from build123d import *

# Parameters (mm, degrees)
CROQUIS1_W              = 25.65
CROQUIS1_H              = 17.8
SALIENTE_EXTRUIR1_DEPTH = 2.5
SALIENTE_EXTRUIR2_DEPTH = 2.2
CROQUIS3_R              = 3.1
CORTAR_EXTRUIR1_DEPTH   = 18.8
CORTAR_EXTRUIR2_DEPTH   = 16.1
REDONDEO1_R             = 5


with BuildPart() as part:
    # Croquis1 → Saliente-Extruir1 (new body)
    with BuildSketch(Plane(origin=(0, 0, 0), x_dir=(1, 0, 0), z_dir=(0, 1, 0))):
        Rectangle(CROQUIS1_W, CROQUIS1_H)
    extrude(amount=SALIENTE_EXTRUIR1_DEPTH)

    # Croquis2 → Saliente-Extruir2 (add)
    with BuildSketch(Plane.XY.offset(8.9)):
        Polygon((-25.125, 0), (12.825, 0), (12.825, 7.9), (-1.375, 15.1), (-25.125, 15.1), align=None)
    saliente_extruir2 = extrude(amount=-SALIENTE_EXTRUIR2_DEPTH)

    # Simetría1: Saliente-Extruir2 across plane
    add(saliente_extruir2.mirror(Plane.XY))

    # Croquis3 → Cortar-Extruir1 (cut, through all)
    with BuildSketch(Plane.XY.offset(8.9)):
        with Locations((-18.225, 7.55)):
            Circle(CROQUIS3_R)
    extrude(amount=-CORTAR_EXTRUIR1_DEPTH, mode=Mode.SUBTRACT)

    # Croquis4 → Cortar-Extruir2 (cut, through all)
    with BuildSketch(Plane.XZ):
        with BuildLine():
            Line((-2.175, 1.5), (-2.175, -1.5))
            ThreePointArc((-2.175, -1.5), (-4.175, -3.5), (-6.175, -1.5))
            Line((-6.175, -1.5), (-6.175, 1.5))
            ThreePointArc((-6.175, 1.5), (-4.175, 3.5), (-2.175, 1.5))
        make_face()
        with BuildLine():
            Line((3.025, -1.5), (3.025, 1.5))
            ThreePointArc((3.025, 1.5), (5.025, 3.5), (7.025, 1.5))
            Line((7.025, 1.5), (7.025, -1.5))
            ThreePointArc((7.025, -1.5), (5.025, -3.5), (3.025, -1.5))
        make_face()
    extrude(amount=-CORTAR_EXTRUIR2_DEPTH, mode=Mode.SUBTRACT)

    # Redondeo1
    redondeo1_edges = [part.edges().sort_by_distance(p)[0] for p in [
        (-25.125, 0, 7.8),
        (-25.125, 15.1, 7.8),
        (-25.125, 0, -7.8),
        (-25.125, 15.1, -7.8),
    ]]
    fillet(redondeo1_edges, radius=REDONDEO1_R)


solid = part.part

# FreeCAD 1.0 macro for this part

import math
import FreeCAD as App
import Part
import Sketcher


def edges_at(feature, points):
    """Names of the edges that pass closest to the given points."""
    edges = feature.Shape.Edges
    near = lambda p: min(range(len(edges)), key=lambda i: edges[i].distToShape(Part.Vertex(*p))[0])
    return sorted({f"Edge{near(p) + 1}" for p in points})

doc = App.newDocument("Part")
body = doc.addObject("PartDesign::Body", "Body")

# Sketch on XZ plane
sketch1 = body.newObject("Sketcher::SketchObject", "Sketch")
sketch1.AttachmentSupport = (doc.getObject("XZ_Plane"), [""])
sketch1.MapMode = "FlatFace"
sketch1.addGeometry(Part.LineSegment(App.Vector(-13, -9, 0), App.Vector(-13, 9, 0)), False)
sketch1.addGeometry(Part.LineSegment(App.Vector(-13, 9, 0), App.Vector(13, 9, 0)), False)
sketch1.addGeometry(Part.LineSegment(App.Vector(13, 9, 0), App.Vector(13, -9, 0)), False)
sketch1.addGeometry(Part.LineSegment(App.Vector(13, -9, 0), App.Vector(-13, -9, 0)), False)
sketch1.addConstraint(Sketcher.Constraint("Coincident", 0, 2, 1, 1))
sketch1.addConstraint(Sketcher.Constraint("Coincident", 1, 2, 2, 1))
sketch1.addConstraint(Sketcher.Constraint("Coincident", 2, 2, 3, 1))
sketch1.addConstraint(Sketcher.Constraint("Coincident", 3, 2, 0, 1))
sketch1.addConstraint(Sketcher.Constraint("Vertical", 0))
sketch1.addConstraint(Sketcher.Constraint("Horizontal", 1))
sketch1.addConstraint(Sketcher.Constraint("Vertical", 2))
sketch1.addConstraint(Sketcher.Constraint("Horizontal", 3))
sketch1.addConstraint(Sketcher.Constraint("Symmetric", 0, 2, 2, 2, -1, 1))
sketch1.addConstraint(Sketcher.Constraint("DistanceY", 0, 1, 0, 2, 17.8))
sketch1.addConstraint(Sketcher.Constraint("DistanceX", 1, 1, 1, 2, 25.65))
pad1 = body.newObject("PartDesign::Pad", "Pad")
pad1.Profile = sketch1
pad1.Length = 2.5
pad1.Reversed = True

# Sketch on XY plane
sketch2 = body.newObject("Sketcher::SketchObject", "Sketch001")
sketch2.AttachmentSupport = (doc.getObject("XY_Plane"), [""])
sketch2.MapMode = "FlatFace"
sketch2.AttachmentOffset = App.Placement(App.Vector(0, 0, 8.9), App.Rotation())
sketch2.addGeometry(Part.LineSegment(App.Vector(-25, 0, 0), App.Vector(13, 0, 0)), False)
sketch2.addGeometry(Part.LineSegment(App.Vector(13, 0, 0), App.Vector(13, 8, 0)), False)
sketch2.addGeometry(Part.LineSegment(App.Vector(13, 8, 0), App.Vector(-1, 15, 0)), False)
sketch2.addGeometry(Part.LineSegment(App.Vector(-1, 15, 0), App.Vector(-25, 15, 0)), False)
sketch2.addGeometry(Part.LineSegment(App.Vector(-25, 15, 0), App.Vector(-25, 0, 0)), False)
sketch2.addConstraint(Sketcher.Constraint("Coincident", 0, 2, 1, 1))
sketch2.addConstraint(Sketcher.Constraint("Coincident", 1, 2, 2, 1))
sketch2.addConstraint(Sketcher.Constraint("Coincident", 2, 2, 3, 1))
sketch2.addConstraint(Sketcher.Constraint("Coincident", 3, 2, 4, 1))
sketch2.addConstraint(Sketcher.Constraint("Coincident", 4, 2, 0, 1))
sketch2.addConstraint(Sketcher.Constraint("Horizontal", 0))
sketch2.addConstraint(Sketcher.Constraint("Vertical", 1))
sketch2.addConstraint(Sketcher.Constraint("Horizontal", 3))
sketch2.addConstraint(Sketcher.Constraint("Vertical", 4))
sketch2.addConstraint(Sketcher.Constraint("PointOnObject", 0, 2, -1))
sketch2.addConstraint(Sketcher.Constraint("DistanceY", 1, 1, 1, 2, 7.9))
sketch2.addConstraint(Sketcher.Constraint("DistanceY", 4, 2, 4, 1, 15.1))
sketch2.addConstraint(Sketcher.Constraint("DistanceX", 0, 1, 0, 2, 37.95))
sketch2.addConstraint(Sketcher.Constraint("DistanceX", 3, 2, 3, 1, 23.75))
sketch2.addConstraint(Sketcher.Constraint("DistanceX", -1, 1, 0, 2, 12.825))
pad2 = body.newObject("PartDesign::Pad", "Pad001")
pad2.Profile = sketch2
pad2.Length = 2.2
pad2.Reversed = True
doc.recompute()

mirrored = body.newObject("PartDesign::Mirrored", "Mirrored")
mirrored.Originals = [pad2]
mirrored.MirrorPlane = (doc.getObject("XY_Plane"), [""])
body.Tip = mirrored

# Sketch on XY plane
sketch3 = body.newObject("Sketcher::SketchObject", "Sketch002")
sketch3.AttachmentSupport = (doc.getObject("XY_Plane"), [""])
sketch3.MapMode = "FlatFace"
sketch3.AttachmentOffset = App.Placement(App.Vector(0, 0, 8.9), App.Rotation())
sketch3.addGeometry(Part.Circle(App.Vector(-18.2, 7.5, 0), App.Vector(0, 0, 1), 3.1), False)
sketch3.addConstraint(Sketcher.Constraint("Diameter", 0, 6.2))
sketch3.addConstraint(Sketcher.Constraint("DistanceY", -1, 1, 0, 3, 7.55))
sketch3.addConstraint(Sketcher.Constraint("DistanceX", 0, 3, -1, 1, 18.225))
pocket1 = body.newObject("PartDesign::Pocket", "Pocket")
pocket1.Profile = sketch3
pocket1.Type = "ThroughAll"

# Sketch on XZ plane
sketch4 = body.newObject("Sketcher::SketchObject", "Sketch003")
sketch4.AttachmentSupport = (doc.getObject("XZ_Plane"), [""])
sketch4.MapMode = "FlatFace"
sketch4.addGeometry(Part.LineSegment(App.Vector(-2.2, -1.5, 0), App.Vector(-2.2, 1.5, 0)), False)
sketch4.addGeometry(Part.ArcOfCircle(Part.Circle(App.Vector(-4.2, 1.5, 0), App.Vector(0, 0, 1), 2), math.radians(0), math.radians(180)), False)
sketch4.addGeometry(Part.LineSegment(App.Vector(-6.2, 1.5, 0), App.Vector(-6.2, -1.5, 0)), False)
sketch4.addGeometry(Part.ArcOfCircle(Part.Circle(App.Vector(-4.2, -1.5, 0), App.Vector(0, 0, 1), 2), math.radians(180), math.radians(360)), False)
sketch4.addGeometry(Part.LineSegment(App.Vector(3, 1.5, 0), App.Vector(3, -1.5, 0)), False)
sketch4.addGeometry(Part.ArcOfCircle(Part.Circle(App.Vector(5, -1.5, 0), App.Vector(0, 0, 1), 2), math.radians(180), math.radians(360)), False)
sketch4.addGeometry(Part.LineSegment(App.Vector(7, -1.5, 0), App.Vector(7, 1.5, 0)), False)
sketch4.addGeometry(Part.ArcOfCircle(Part.Circle(App.Vector(5, 1.5, 0), App.Vector(0, 0, 1), 2), math.radians(0), math.radians(180)), False)
sketch4.addConstraint(Sketcher.Constraint("Tangent", 0, 2, 1, 1))
sketch4.addConstraint(Sketcher.Constraint("Tangent", 1, 2, 2, 1))
sketch4.addConstraint(Sketcher.Constraint("Tangent", 2, 2, 3, 1))
sketch4.addConstraint(Sketcher.Constraint("Tangent", 3, 2, 0, 1))
sketch4.addConstraint(Sketcher.Constraint("Tangent", 4, 2, 5, 1))
sketch4.addConstraint(Sketcher.Constraint("Tangent", 5, 2, 6, 1))
sketch4.addConstraint(Sketcher.Constraint("Tangent", 6, 2, 7, 1))
sketch4.addConstraint(Sketcher.Constraint("Tangent", 7, 2, 4, 1))
sketch4.addConstraint(Sketcher.Constraint("Vertical", 0))
sketch4.addConstraint(Sketcher.Constraint("Vertical", 2))
sketch4.addConstraint(Sketcher.Constraint("Vertical", 4))
sketch4.addConstraint(Sketcher.Constraint("Vertical", 6))
sketch4.addConstraint(Sketcher.Constraint("Equal", 3, 5))
sketch4.addConstraint(Sketcher.Constraint("Horizontal", 3, 3, 5, 3))
sketch4.addConstraint(Sketcher.Constraint("Horizontal", 1, 3, 7, 3))
sketch4.addConstraint(Sketcher.Constraint("Radius", 1, 2.0))
sketch4.addConstraint(Sketcher.Constraint("DistanceY", 0, 1, 0, 2, 3.0))
sketch4.addConstraint(Sketcher.Constraint("DistanceY", -1, 1, 1, 3, 1.5))
sketch4.addConstraint(Sketcher.Constraint("DistanceX", 3, 3, 5, 3, 9.2))
sketch4.addConstraint(Sketcher.Constraint("DistanceX", 1, 3, -1, 1, 4.175))
pocket2 = body.newObject("PartDesign::Pocket", "Pocket001")
pocket2.Profile = sketch4
pocket2.Type = "ThroughAll"
doc.recompute()

fillet = body.newObject("PartDesign::Fillet", "Fillet")
fillet.Base = (pocket2, edges_at(pocket2, [
    (-25.125, 0, 7.8),
    (-25.125, 15.1, 7.8),
    (-25.125, 0, -7.8),
    (-25.125, 15.1, -7.8),
]))
fillet.Radius = 5

doc.recompute()
